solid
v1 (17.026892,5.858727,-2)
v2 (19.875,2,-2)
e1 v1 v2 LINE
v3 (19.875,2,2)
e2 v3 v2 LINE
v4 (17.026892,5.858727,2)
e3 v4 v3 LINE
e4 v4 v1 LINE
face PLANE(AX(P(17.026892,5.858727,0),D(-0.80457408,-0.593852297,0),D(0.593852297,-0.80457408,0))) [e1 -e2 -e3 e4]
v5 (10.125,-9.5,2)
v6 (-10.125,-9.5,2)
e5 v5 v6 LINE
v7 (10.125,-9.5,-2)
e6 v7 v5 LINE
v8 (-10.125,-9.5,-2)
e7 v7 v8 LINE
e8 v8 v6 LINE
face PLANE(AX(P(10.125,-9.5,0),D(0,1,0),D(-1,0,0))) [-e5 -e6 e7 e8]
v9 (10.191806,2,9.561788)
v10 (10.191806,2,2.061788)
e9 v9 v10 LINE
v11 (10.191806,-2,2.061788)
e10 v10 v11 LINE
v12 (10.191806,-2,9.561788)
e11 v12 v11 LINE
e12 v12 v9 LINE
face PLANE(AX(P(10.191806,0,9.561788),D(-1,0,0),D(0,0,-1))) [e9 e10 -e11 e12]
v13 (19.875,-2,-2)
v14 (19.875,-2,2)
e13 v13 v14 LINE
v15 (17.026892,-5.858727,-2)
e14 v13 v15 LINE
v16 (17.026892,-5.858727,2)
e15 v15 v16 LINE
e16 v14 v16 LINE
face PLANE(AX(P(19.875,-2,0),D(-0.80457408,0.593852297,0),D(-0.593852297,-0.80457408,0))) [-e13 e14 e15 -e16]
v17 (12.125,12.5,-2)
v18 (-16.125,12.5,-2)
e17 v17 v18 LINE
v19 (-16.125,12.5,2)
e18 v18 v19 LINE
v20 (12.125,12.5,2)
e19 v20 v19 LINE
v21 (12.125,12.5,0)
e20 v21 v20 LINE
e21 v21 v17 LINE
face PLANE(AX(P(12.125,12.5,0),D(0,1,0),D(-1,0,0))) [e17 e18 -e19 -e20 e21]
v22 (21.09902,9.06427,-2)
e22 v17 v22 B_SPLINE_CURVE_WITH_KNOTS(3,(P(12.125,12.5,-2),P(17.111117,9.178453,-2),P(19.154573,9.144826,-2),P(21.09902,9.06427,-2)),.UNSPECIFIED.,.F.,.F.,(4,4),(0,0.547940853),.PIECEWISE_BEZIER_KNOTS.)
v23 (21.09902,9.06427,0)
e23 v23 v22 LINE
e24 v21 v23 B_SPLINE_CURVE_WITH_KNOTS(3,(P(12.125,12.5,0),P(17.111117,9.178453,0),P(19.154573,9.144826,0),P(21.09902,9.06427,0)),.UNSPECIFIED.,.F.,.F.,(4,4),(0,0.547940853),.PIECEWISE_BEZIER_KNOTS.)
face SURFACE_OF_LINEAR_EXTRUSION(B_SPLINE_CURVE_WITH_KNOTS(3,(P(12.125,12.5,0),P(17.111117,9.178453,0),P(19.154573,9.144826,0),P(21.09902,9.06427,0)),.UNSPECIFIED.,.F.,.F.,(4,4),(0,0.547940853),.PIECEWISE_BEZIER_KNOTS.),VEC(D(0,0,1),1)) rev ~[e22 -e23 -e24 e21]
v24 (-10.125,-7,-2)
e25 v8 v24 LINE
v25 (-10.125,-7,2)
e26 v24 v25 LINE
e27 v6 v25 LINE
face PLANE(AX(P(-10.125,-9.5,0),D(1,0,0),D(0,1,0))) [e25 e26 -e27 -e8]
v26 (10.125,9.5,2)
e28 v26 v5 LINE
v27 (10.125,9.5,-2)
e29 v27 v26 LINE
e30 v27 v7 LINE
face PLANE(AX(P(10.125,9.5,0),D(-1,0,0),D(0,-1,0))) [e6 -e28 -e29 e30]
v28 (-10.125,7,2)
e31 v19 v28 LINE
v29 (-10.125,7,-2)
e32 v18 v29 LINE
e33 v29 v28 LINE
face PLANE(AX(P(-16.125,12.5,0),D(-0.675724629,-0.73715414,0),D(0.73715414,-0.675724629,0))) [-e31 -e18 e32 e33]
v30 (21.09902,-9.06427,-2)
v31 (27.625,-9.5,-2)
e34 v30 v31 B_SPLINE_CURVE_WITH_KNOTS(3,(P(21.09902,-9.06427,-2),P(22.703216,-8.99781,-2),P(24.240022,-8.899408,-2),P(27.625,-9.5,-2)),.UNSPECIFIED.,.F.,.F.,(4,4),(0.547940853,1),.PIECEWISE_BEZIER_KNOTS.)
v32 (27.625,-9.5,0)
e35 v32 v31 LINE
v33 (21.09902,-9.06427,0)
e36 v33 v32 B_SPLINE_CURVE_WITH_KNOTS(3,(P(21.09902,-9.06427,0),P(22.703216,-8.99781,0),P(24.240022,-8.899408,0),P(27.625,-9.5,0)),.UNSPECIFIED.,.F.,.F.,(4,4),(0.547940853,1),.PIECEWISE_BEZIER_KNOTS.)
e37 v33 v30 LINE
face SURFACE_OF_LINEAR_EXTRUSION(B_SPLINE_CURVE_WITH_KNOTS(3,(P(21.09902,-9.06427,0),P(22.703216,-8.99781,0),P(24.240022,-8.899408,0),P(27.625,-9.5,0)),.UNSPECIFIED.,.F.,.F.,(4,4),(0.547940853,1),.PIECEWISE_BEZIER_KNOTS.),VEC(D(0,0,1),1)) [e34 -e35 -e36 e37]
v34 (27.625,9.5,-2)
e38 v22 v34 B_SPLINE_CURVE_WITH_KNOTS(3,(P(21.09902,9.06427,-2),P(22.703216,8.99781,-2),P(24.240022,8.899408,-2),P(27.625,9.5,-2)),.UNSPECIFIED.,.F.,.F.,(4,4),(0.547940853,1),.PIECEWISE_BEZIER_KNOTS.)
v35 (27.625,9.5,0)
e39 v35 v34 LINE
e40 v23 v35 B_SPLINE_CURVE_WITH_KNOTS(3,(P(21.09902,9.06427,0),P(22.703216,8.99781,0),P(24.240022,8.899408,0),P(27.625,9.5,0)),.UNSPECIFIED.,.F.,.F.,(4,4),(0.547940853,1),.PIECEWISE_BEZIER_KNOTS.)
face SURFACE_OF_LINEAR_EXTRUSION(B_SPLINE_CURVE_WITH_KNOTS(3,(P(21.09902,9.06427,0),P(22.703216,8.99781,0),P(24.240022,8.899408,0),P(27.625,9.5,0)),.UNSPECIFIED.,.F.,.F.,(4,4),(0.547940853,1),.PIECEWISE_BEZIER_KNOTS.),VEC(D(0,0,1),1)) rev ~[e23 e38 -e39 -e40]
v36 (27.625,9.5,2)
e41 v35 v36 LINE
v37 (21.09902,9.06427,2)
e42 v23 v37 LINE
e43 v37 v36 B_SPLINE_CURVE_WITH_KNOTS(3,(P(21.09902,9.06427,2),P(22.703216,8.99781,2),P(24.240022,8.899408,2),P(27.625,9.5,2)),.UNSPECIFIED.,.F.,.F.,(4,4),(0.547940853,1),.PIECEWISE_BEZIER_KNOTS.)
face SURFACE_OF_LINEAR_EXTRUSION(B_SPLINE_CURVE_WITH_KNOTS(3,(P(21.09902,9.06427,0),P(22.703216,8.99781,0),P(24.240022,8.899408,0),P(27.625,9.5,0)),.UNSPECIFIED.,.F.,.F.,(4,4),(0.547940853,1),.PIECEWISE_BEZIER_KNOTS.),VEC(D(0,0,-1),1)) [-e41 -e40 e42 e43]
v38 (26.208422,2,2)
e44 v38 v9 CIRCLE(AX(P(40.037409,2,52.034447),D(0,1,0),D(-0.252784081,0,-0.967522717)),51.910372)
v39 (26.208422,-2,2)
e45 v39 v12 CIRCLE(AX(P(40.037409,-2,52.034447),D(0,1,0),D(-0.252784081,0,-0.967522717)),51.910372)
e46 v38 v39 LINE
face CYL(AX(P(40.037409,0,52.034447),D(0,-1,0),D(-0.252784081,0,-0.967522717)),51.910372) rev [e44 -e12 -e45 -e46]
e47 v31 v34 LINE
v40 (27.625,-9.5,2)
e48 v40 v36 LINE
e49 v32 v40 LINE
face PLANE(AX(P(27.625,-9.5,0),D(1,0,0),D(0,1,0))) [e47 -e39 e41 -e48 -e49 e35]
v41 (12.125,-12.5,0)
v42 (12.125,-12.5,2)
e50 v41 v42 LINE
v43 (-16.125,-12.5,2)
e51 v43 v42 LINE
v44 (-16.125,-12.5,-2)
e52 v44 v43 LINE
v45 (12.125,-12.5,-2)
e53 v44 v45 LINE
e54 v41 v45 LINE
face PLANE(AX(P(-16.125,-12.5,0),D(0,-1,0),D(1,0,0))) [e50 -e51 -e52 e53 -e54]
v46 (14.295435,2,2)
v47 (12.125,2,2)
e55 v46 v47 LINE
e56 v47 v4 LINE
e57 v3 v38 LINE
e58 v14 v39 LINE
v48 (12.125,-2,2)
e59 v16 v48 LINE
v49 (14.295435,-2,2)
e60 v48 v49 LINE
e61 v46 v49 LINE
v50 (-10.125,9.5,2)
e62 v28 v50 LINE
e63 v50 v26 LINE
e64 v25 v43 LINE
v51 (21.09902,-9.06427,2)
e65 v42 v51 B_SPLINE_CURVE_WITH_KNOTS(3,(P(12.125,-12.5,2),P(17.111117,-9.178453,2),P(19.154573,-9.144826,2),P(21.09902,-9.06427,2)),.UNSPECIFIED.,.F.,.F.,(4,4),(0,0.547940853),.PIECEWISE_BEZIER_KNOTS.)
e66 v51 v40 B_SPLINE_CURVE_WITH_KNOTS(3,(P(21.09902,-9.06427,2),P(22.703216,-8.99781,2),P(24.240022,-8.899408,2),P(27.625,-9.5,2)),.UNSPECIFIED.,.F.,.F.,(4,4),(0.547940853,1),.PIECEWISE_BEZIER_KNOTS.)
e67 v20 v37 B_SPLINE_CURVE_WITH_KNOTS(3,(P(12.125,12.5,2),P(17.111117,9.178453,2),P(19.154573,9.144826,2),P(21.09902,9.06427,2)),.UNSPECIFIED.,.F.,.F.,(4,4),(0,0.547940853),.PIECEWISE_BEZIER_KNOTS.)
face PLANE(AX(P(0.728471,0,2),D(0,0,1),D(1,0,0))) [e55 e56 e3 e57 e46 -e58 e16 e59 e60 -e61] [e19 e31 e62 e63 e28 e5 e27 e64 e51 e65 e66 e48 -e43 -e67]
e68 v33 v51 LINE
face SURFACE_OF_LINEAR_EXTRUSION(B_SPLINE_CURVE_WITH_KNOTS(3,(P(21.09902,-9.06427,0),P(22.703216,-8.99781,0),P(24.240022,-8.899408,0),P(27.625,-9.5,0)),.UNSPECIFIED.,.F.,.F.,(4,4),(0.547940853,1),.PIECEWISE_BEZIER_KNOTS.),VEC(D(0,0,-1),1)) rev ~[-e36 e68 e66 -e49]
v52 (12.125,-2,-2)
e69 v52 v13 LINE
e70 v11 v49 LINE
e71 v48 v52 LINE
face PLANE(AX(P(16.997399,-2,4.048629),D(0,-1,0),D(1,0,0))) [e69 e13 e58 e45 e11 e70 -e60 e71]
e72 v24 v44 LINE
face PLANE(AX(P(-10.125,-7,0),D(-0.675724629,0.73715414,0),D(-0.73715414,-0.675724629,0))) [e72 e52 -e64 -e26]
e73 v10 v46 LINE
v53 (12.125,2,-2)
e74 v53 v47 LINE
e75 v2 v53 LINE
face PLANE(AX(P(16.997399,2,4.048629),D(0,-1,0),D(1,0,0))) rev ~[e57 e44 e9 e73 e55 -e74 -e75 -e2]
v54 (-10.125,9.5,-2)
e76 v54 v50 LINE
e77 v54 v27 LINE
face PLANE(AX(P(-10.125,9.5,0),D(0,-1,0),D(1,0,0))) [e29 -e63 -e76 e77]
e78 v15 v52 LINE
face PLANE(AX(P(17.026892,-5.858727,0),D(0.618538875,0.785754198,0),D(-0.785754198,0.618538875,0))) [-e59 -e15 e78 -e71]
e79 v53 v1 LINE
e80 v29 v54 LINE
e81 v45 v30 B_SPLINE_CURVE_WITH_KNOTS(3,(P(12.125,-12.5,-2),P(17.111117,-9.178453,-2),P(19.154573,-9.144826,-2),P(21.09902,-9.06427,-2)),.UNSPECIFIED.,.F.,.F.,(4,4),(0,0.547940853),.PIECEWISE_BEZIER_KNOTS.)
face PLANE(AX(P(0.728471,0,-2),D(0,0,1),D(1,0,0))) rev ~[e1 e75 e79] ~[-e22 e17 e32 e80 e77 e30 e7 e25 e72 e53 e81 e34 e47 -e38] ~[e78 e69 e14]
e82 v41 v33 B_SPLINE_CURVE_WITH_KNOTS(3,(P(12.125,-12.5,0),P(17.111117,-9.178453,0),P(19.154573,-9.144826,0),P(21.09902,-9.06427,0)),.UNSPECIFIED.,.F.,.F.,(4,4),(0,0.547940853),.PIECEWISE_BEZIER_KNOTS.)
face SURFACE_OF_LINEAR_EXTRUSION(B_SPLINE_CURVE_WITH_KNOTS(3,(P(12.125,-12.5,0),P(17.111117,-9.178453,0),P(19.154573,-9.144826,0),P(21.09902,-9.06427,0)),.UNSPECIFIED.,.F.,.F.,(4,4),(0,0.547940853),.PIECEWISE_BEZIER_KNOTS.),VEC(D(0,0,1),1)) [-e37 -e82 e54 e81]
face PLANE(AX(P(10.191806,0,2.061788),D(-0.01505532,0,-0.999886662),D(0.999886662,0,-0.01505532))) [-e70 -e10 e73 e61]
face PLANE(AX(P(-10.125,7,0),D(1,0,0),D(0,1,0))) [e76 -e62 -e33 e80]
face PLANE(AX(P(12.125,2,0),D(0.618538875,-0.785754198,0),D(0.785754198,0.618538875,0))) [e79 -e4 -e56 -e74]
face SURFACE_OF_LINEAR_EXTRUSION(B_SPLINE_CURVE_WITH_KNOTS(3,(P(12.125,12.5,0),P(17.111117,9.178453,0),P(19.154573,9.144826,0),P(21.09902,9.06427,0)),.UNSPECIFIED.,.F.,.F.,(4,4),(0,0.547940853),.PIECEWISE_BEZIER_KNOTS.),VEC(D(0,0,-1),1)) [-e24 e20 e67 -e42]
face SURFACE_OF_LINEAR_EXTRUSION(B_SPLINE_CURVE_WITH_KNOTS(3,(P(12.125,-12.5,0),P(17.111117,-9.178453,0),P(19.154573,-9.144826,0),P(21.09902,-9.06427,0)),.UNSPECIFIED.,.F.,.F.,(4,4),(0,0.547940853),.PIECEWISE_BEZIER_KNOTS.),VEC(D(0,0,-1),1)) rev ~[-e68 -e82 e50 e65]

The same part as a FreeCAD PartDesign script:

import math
import FreeCAD as App
import Part
import Sketcher

V = App.Vector

doc = App.newDocument("Part")
body = doc.addObject("PartDesign::Body", "Body")

# Sketch on XY plane
sketch1 = doc.addObject("Sketcher::SketchObject", "Sketch")
body.addObject(sketch1)
sketch1.AttachmentSupport = (doc.XY_Plane, [""])
sketch1.MapMode = "FlatFace"
sketch1.addGeometry([
    Part.LineSegment(V(27.625, -9.5, 0), V(27.625, 9.5, 0)),  # 0
    Part.BSplineCurve([V(21.09902, 9.06427, 0), V(22.703216, 8.99781, 0), V(24.240022, 8.899408, 0), V(27.625, 9.5, 0)], [4, 4], [0.547940853, 1], False, 3, [1, 1, 1, 1], False),  # 1
    Part.BSplineCurve([V(12.125, 12.5, 0), V(17.111117, 9.178453, 0), V(19.154573, 9.144826, 0), V(21.09902, 9.06427, 0)], [4, 4], [0, 0.547940853], False, 3, [1, 1, 1, 1], False),  # 2
    Part.LineSegment(V(12.125, 12.5, 0), V(-16.125, 12.5, 0)),  # 3
    Part.LineSegment(V(-16.125, 12.5, 0), V(-10.125, 7, 0)),  # 4
    Part.LineSegment(V(-10.125, 7, 0), V(-10.125, 9.5, 0)),  # 5
    Part.LineSegment(V(-10.125, 9.5, 0), V(10.125, 9.5, 0)),  # 6
    Part.LineSegment(V(10.125, 9.5, 0), V(10.125, -9.5, 0)),  # 7
    Part.LineSegment(V(10.125, -9.5, 0), V(-10.125, -9.5, 0)),  # 8
    Part.LineSegment(V(-10.125, -9.5, 0), V(-10.125, -7, 0)),  # 9
    Part.LineSegment(V(-10.125, -7, 0), V(-16.125, -12.5, 0)),  # 10
    Part.LineSegment(V(-16.125, -12.5, 0), V(12.125, -12.5, 0)),  # 11
    Part.BSplineCurve([V(12.125, -12.5, 0), V(17.111117, -9.178453, 0), V(19.154573, -9.144826, 0), V(21.09902, -9.06427, 0)], [4, 4], [0, 0.547940853], False, 3, [1, 1, 1, 1], False),  # 12
    Part.BSplineCurve([V(21.09902, -9.06427, 0), V(22.703216, -8.99781, 0), V(24.240022, -8.899408, 0), V(27.625, -9.5, 0)], [4, 4], [0.547940853, 1], False, 3, [1, 1, 1, 1], False),  # 13
    Part.LineSegment(V(12.125, -2, 0), V(19.875, -2, 0)),  # 14
    Part.LineSegment(V(19.875, -2, 0), V(17.026892, -5.858727, 0)),  # 15
    Part.LineSegment(V(17.026892, -5.858727, 0), V(12.125, -2, 0)),  # 16
    Part.LineSegment(V(17.026892, 5.858727, 0), V(19.875, 2, 0)),  # 17
    Part.LineSegment(V(19.875, 2, 0), V(12.125, 2, 0)),  # 18
    Part.LineSegment(V(12.125, 2, 0), V(17.026892, 5.858727, 0)),  # 19
], False)
sketch1.addConstraint([
    Sketcher.Constraint("Block", 1),
    Sketcher.Constraint("Block", 2),
    Sketcher.Constraint("Block", 12),
    Sketcher.Constraint("Block", 13),
    Sketcher.Constraint("Coincident", 0, 2, 1, 2),
    Sketcher.Constraint("Coincident", 2, 1, 3, 1),
    Sketcher.Constraint("Coincident", 3, 2, 4, 1),
    Sketcher.Constraint("Coincident", 4, 2, 5, 1),
    Sketcher.Constraint("Coincident", 5, 2, 6, 1),
    Sketcher.Constraint("Coincident", 6, 2, 7, 1),
    Sketcher.Constraint("Coincident", 7, 2, 8, 1),
    Sketcher.Constraint("Coincident", 8, 2, 9, 1),
    Sketcher.Constraint("Coincident", 9, 2, 10, 1),
    Sketcher.Constraint("Coincident", 10, 2, 11, 1),
    Sketcher.Constraint("Coincident", 11, 2, 12, 1),
    Sketcher.Constraint("Coincident", 13, 2, 0, 1),
    Sketcher.Constraint("Coincident", 14, 2, 15, 1),
    Sketcher.Constraint("Coincident", 15, 2, 16, 1),
    Sketcher.Constraint("Coincident", 16, 2, 14, 1),
    Sketcher.Constraint("Coincident", 17, 2, 18, 1),
    Sketcher.Constraint("Coincident", 18, 2, 19, 1),
    Sketcher.Constraint("Coincident", 19, 2, 17, 1),
    Sketcher.Constraint("Horizontal", 3),
    Sketcher.Constraint("Vertical", 5),
    Sketcher.Constraint("Horizontal", 6),
    Sketcher.Constraint("Vertical", 7),
    Sketcher.Constraint("Horizontal", 8),
    Sketcher.Constraint("Vertical", 9),
    Sketcher.Constraint("Horizontal", 11),
    Sketcher.Constraint("Horizontal", 14),
    Sketcher.Constraint("Horizontal", 18),
    Sketcher.Constraint("Symmetric", 5, 2, 7, 2, -1, 1),
    Sketcher.Constraint("Symmetric", 4, 2, 9, 2, -1),
    Sketcher.Constraint("Symmetric", 14, 2, 17, 2, -1),
    Sketcher.Constraint("Symmetric", 15, 2, 19, 2, -1),
    Sketcher.Constraint("Horizontal", 0, 2, 5, 2),
    Sketcher.Constraint("Vertical", 3, 2, 10, 2),
    Sketcher.Constraint("Vertical", 11, 2, 16, 2),
    Sketcher.Constraint("Vertical", 16, 2, 18, 2),
    Sketcher.Constraint("DistanceY", 5, 1, 5, 2, 2.5),
    Sketcher.Constraint("DistanceY", 14, 2, -1, 1, 2.0),
    Sketcher.Constraint("DistanceX", 3, 2, 4, 2, 6.0),
    Sketcher.Constraint("DistanceX", 7, 2, 11, 2, 2.0),
    Sketcher.Constraint("DistanceX", 9, 2, 14, 2, 30.0),
    Sketcher.Constraint("Distance", 15, 4.795987),
    Sketcher.Constraint("Distance", 16, 6.238455),
])
pad1 = doc.addObject("PartDesign::Pad", "Pad")
body.addObject(pad1)
pad1.Profile = sketch1
pad1.Length = 4
pad1.Midplane = True

# Sketch on XZ plane
sketch2 = doc.addObject("Sketcher::SketchObject", "Sketch001")
body.addObject(sketch2)
sketch2.AttachmentSupport = (doc.XZ_Plane, [""])
sketch2.MapMode = "FlatFace"
sketch2.addGeometry([
    Part.LineSegment(V(10, 10, 0), V(10, 2, 0)),
    Part.LineSegment(V(10, 2, 0), V(27, 2, 0)),
    Part.ArcOfCircle(Part.Circle(V(40, 52, 0), V(0, 0, 1), 52), math.radians(-125), math.radians(-105)),
], False)
sketch2.addConstraint([
    Sketcher.Constraint("Coincident", 0, 2, 1, 1),
    Sketcher.Constraint("Coincident", 1, 2, 2, 2),
    Sketcher.Constraint("Coincident", 2, 1, 0, 1),
    Sketcher.Constraint("Vertical", 0),
    Sketcher.Constraint("DistanceY", 0, 2, 0, 1, 7.5),
    Sketcher.Constraint("Radius", 2, 51.910372),
    Sketcher.Constraint("DistanceX", -1, 1, 2, 3, 40.037409),
    Sketcher.Constraint("DistanceY", -1, 1, 0, 2, 2.061788),
    Sketcher.Constraint("DistanceY", 0, 2, 2, 3, 49.972659),
    Sketcher.Constraint("Distance", 1, 16.725383),
])
pad2 = doc.addObject("PartDesign::Pad", "Pad001")
body.addObject(pad2)
pad2.Profile = sketch2
pad2.Length = 4
pad2.Midplane = True

doc.recompute()
